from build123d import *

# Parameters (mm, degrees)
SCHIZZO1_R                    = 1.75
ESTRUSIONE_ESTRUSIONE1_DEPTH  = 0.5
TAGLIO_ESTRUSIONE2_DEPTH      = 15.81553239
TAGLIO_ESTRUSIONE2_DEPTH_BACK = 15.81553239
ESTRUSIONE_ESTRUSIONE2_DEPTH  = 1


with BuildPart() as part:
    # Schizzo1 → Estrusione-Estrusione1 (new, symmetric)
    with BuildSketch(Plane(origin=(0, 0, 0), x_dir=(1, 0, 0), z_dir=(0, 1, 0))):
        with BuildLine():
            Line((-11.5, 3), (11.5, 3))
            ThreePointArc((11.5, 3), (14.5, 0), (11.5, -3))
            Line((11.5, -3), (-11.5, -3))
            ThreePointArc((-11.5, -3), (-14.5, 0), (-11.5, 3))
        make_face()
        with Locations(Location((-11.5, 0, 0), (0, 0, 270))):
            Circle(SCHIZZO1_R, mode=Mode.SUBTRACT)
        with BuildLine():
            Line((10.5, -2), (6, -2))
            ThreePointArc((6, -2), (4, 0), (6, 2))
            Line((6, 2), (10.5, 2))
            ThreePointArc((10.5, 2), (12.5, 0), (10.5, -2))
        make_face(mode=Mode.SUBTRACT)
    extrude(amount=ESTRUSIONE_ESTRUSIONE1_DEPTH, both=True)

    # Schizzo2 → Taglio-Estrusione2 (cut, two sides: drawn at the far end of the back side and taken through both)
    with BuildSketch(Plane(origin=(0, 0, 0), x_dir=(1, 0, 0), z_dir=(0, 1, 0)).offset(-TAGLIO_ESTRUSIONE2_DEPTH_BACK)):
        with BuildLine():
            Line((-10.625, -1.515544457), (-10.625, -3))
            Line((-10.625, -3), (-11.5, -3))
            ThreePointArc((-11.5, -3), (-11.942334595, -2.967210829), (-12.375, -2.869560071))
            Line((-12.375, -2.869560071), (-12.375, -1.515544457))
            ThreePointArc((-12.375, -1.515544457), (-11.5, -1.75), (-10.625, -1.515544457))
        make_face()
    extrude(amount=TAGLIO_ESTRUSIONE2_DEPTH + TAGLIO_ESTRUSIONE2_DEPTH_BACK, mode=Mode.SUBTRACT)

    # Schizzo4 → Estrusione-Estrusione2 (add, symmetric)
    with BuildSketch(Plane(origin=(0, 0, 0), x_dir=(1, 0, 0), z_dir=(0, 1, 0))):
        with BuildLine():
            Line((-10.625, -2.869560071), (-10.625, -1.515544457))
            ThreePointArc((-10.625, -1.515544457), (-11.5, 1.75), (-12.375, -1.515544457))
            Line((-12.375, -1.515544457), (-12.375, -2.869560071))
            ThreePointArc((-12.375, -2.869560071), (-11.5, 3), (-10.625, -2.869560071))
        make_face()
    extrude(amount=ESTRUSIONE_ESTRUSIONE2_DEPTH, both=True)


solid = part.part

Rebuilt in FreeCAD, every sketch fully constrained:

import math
import FreeCAD as App
import Part
import Sketcher

V = App.Vector
Q = App.Units.Quantity

doc = App.newDocument("Part")
body = doc.addObject("PartDesign::Body", "Body")

# Sketch on XZ plane
sketch1 = doc.addObject("Sketcher::SketchObject", "Sketch")
body.addObject(sketch1)
sketch1.AttachmentSupport = (doc.XZ_Plane, [""])
sketch1.MapMode = "FlatFace"
sketch1.addGeometry([
    Part.LineSegment(V(11.5, -3, 0), V(-11.5, -3, 0)),  # 0
    Part.ArcOfCircle(Part.Circle(V(-11.5, 0, 0), V(0, 0, 1), 3), math.radians(90), math.radians(270)),  # 1
    Part.LineSegment(V(-11.5, 3, 0), V(11.5, 3, 0)),  # 2
    Part.ArcOfCircle(Part.Circle(V(11.5, 0, 0), V(0, 0, 1), 3), math.radians(-90), math.radians(90)),  # 3
    Part.LineSegment(V(10.5, 2, 0), V(6, 2, 0)),  # 4
    Part.ArcOfCircle(Part.Circle(V(6, 0, 0), V(0, 0, 1), 2), math.radians(90), math.radians(270)),  # 5
    Part.LineSegment(V(6, -2, 0), V(10.5, -2, 0)),  # 6
    Part.ArcOfCircle(Part.Circle(V(10.5, 0, 0), V(0, 0, 1), 2), math.radians(-90), math.radians(90)),  # 7
    Part.Circle(V(-11.5, 0, 0), V(0, 0, 1), 1.8),  # 8
], False)
sketch1.addConstraint([
    Sketcher.Constraint("Tangent", 0, 2, 1, 2),
    Sketcher.Constraint("Tangent", 1, 1, 2, 1),
    Sketcher.Constraint("Tangent", 2, 2, 3, 2),
    Sketcher.Constraint("Tangent", 3, 1, 0, 1),
    Sketcher.Constraint("Tangent", 4, 2, 5, 1),
    Sketcher.Constraint("Tangent", 5, 2, 6, 1),
    Sketcher.Constraint("Tangent", 6, 2, 7, 1),
    Sketcher.Constraint("Tangent", 7, 2, 4, 1),
    Sketcher.Constraint("Horizontal", 0),
    Sketcher.Constraint("Horizontal", 2),
    Sketcher.Constraint("Horizontal", 4),
    Sketcher.Constraint("Horizontal", 6),
    Sketcher.Constraint("Coincident", 8, 3, 1, 3),
    Sketcher.Constraint("Symmetric", 1, 3, 3, 3, -1, 1),
    Sketcher.Constraint("PointOnObject", 5, 3, -1),
    Sketcher.Constraint("Radius", 1, Q("3 mm")),
    Sketcher.Constraint("Radius", 5, Q("2 mm")),
    Sketcher.Constraint("Diameter", 8, Q("3.5 mm")),
    Sketcher.Constraint("DistanceX", 0, 2, 0, 1, Q("23 mm")),
    Sketcher.Constraint("DistanceX", 4, 2, 4, 1, Q("4.5 mm")),
    Sketcher.Constraint("DistanceX", -1, 1, 5, 3, Q("6 mm")),
])
pad1 = doc.addObject("PartDesign::Pad", "Pad")
body.addObject(pad1)
pad1.Profile = sketch1
pad1.Length = 1
pad1.Midplane = True

# Sketch on XZ plane
sketch2 = doc.addObject("Sketcher::SketchObject", "Sketch001")
body.addObject(sketch2)
sketch2.AttachmentSupport = (doc.XZ_Plane, [""])
sketch2.MapMode = "FlatFace"
sketch2.addGeometry([
    Part.LineSegment(V(-10.6, 3, 0), V(-10.6, 1.5, 0)),  # 0
    Part.ArcOfCircle(Part.Circle(V(-11.5, 0, 0), V(0, 0, 1), 1.8), math.radians(60), math.radians(120)),  # 1
    Part.LineSegment(V(-12.4, 1.5, 0), V(-12.4, 2.9, 0)),  # 2
    Part.ArcOfCircle(Part.Circle(V(-11.5, 0, 0), V(0, 0, 1), 3), math.radians(90), math.radians(106.96)),  # 3
    Part.LineSegment(V(-11.5, 3, 0), V(-10.6, 3, 0)),  # 4
], False)
sketch2.addConstraint([
    Sketcher.Constraint("Coincident", 0, 2, 1, 1),
    Sketcher.Constraint("Coincident", 1, 2, 2, 1),
    Sketcher.Constraint("Coincident", 2, 2, 3, 2),
    Sketcher.Constraint("Tangent", 3, 1, 4, 1),
    Sketcher.Constraint("Coincident", 4, 2, 0, 1),
    Sketcher.Constraint("Vertical", 0),
    Sketcher.Constraint("Vertical", 2),
    Sketcher.Constraint("Horizontal", 4),
    Sketcher.Constraint("Coincident", 3, 3, 1, 3),
    Sketcher.Constraint("PointOnObject", 1, 3, -1),
    Sketcher.Constraint("Horizontal", 0, 2, 1, 2),
    Sketcher.Constraint("Radius", 3, Q("3 mm")),
    Sketcher.Constraint("Radius", 1, Q("1.75 mm")),
    Sketcher.Constraint("DistanceX", 1, 3, -1, 1, Q("11.5 mm")),
    Sketcher.Constraint("DistanceX", 4, 1, 4, 2, Q("0.875 mm")),
])
pocket1 = doc.addObject("PartDesign::Pocket", "Pocket")
body.addObject(pocket1)
pocket1.Profile = sketch2
pocket1.Type = "ThroughAll"
pocket1.Midplane = True

# Sketch on XZ plane
sketch3 = doc.addObject("Sketcher::SketchObject", "Sketch002")
body.addObject(sketch3)
sketch3.AttachmentSupport = (doc.XZ_Plane, [""])
sketch3.MapMode = "FlatFace"
sketch3.addGeometry([
    Part.LineSegment(V(-10.6, 1.5, 0), V(-10.6, 2.9, 0)),
    Part.ArcOfCircle(Part.Circle(V(-11.5, 0, 0), V(0, 0, 1), 3), math.radians(107), math.radians(433)),
    Part.LineSegment(V(-12.4, 2.9, 0), V(-12.4, 1.5, 0)),
    Part.ArcOfCircle(Part.Circle(V(-11.5, 0, 0), V(0, 0, 1), 1.8), math.radians(120), math.radians(420)),
], False)
sketch3.addConstraint([
    Sketcher.Constraint("Coincident", 0, 2, 1, 2),
    Sketcher.Constraint("Coincident", 1, 1, 2, 1),
    Sketcher.Constraint("Coincident", 2, 2, 3, 1),
    Sketcher.Constraint("Coincident", 3, 2, 0, 1),
    Sketcher.Constraint("Vertical", 0),
    Sketcher.Constraint("Vertical", 2),
    Sketcher.Constraint("Coincident", 3, 3, 1, 3),
    Sketcher.Constraint("PointOnObject", 1, 3, -1),
    Sketcher.Constraint("Horizontal", 0, 2, 1, 1),
    Sketcher.Constraint("Radius", 1, Q("3 mm")),
    Sketcher.Constraint("Radius", 3, Q("1.75 mm")),
    Sketcher.Constraint("DistanceX", 1, 3, -1, 1, Q("11.5 mm")),
    Sketcher.Constraint("DistanceX", 1, 1, 0, 2, Q("1.75 mm")),
])
pad2 = doc.addObject("PartDesign::Pad", "Pad001")
body.addObject(pad2)
pad2.Profile = sketch3
pad2.Length = 2
pad2.Midplane = True

doc.recompute()
